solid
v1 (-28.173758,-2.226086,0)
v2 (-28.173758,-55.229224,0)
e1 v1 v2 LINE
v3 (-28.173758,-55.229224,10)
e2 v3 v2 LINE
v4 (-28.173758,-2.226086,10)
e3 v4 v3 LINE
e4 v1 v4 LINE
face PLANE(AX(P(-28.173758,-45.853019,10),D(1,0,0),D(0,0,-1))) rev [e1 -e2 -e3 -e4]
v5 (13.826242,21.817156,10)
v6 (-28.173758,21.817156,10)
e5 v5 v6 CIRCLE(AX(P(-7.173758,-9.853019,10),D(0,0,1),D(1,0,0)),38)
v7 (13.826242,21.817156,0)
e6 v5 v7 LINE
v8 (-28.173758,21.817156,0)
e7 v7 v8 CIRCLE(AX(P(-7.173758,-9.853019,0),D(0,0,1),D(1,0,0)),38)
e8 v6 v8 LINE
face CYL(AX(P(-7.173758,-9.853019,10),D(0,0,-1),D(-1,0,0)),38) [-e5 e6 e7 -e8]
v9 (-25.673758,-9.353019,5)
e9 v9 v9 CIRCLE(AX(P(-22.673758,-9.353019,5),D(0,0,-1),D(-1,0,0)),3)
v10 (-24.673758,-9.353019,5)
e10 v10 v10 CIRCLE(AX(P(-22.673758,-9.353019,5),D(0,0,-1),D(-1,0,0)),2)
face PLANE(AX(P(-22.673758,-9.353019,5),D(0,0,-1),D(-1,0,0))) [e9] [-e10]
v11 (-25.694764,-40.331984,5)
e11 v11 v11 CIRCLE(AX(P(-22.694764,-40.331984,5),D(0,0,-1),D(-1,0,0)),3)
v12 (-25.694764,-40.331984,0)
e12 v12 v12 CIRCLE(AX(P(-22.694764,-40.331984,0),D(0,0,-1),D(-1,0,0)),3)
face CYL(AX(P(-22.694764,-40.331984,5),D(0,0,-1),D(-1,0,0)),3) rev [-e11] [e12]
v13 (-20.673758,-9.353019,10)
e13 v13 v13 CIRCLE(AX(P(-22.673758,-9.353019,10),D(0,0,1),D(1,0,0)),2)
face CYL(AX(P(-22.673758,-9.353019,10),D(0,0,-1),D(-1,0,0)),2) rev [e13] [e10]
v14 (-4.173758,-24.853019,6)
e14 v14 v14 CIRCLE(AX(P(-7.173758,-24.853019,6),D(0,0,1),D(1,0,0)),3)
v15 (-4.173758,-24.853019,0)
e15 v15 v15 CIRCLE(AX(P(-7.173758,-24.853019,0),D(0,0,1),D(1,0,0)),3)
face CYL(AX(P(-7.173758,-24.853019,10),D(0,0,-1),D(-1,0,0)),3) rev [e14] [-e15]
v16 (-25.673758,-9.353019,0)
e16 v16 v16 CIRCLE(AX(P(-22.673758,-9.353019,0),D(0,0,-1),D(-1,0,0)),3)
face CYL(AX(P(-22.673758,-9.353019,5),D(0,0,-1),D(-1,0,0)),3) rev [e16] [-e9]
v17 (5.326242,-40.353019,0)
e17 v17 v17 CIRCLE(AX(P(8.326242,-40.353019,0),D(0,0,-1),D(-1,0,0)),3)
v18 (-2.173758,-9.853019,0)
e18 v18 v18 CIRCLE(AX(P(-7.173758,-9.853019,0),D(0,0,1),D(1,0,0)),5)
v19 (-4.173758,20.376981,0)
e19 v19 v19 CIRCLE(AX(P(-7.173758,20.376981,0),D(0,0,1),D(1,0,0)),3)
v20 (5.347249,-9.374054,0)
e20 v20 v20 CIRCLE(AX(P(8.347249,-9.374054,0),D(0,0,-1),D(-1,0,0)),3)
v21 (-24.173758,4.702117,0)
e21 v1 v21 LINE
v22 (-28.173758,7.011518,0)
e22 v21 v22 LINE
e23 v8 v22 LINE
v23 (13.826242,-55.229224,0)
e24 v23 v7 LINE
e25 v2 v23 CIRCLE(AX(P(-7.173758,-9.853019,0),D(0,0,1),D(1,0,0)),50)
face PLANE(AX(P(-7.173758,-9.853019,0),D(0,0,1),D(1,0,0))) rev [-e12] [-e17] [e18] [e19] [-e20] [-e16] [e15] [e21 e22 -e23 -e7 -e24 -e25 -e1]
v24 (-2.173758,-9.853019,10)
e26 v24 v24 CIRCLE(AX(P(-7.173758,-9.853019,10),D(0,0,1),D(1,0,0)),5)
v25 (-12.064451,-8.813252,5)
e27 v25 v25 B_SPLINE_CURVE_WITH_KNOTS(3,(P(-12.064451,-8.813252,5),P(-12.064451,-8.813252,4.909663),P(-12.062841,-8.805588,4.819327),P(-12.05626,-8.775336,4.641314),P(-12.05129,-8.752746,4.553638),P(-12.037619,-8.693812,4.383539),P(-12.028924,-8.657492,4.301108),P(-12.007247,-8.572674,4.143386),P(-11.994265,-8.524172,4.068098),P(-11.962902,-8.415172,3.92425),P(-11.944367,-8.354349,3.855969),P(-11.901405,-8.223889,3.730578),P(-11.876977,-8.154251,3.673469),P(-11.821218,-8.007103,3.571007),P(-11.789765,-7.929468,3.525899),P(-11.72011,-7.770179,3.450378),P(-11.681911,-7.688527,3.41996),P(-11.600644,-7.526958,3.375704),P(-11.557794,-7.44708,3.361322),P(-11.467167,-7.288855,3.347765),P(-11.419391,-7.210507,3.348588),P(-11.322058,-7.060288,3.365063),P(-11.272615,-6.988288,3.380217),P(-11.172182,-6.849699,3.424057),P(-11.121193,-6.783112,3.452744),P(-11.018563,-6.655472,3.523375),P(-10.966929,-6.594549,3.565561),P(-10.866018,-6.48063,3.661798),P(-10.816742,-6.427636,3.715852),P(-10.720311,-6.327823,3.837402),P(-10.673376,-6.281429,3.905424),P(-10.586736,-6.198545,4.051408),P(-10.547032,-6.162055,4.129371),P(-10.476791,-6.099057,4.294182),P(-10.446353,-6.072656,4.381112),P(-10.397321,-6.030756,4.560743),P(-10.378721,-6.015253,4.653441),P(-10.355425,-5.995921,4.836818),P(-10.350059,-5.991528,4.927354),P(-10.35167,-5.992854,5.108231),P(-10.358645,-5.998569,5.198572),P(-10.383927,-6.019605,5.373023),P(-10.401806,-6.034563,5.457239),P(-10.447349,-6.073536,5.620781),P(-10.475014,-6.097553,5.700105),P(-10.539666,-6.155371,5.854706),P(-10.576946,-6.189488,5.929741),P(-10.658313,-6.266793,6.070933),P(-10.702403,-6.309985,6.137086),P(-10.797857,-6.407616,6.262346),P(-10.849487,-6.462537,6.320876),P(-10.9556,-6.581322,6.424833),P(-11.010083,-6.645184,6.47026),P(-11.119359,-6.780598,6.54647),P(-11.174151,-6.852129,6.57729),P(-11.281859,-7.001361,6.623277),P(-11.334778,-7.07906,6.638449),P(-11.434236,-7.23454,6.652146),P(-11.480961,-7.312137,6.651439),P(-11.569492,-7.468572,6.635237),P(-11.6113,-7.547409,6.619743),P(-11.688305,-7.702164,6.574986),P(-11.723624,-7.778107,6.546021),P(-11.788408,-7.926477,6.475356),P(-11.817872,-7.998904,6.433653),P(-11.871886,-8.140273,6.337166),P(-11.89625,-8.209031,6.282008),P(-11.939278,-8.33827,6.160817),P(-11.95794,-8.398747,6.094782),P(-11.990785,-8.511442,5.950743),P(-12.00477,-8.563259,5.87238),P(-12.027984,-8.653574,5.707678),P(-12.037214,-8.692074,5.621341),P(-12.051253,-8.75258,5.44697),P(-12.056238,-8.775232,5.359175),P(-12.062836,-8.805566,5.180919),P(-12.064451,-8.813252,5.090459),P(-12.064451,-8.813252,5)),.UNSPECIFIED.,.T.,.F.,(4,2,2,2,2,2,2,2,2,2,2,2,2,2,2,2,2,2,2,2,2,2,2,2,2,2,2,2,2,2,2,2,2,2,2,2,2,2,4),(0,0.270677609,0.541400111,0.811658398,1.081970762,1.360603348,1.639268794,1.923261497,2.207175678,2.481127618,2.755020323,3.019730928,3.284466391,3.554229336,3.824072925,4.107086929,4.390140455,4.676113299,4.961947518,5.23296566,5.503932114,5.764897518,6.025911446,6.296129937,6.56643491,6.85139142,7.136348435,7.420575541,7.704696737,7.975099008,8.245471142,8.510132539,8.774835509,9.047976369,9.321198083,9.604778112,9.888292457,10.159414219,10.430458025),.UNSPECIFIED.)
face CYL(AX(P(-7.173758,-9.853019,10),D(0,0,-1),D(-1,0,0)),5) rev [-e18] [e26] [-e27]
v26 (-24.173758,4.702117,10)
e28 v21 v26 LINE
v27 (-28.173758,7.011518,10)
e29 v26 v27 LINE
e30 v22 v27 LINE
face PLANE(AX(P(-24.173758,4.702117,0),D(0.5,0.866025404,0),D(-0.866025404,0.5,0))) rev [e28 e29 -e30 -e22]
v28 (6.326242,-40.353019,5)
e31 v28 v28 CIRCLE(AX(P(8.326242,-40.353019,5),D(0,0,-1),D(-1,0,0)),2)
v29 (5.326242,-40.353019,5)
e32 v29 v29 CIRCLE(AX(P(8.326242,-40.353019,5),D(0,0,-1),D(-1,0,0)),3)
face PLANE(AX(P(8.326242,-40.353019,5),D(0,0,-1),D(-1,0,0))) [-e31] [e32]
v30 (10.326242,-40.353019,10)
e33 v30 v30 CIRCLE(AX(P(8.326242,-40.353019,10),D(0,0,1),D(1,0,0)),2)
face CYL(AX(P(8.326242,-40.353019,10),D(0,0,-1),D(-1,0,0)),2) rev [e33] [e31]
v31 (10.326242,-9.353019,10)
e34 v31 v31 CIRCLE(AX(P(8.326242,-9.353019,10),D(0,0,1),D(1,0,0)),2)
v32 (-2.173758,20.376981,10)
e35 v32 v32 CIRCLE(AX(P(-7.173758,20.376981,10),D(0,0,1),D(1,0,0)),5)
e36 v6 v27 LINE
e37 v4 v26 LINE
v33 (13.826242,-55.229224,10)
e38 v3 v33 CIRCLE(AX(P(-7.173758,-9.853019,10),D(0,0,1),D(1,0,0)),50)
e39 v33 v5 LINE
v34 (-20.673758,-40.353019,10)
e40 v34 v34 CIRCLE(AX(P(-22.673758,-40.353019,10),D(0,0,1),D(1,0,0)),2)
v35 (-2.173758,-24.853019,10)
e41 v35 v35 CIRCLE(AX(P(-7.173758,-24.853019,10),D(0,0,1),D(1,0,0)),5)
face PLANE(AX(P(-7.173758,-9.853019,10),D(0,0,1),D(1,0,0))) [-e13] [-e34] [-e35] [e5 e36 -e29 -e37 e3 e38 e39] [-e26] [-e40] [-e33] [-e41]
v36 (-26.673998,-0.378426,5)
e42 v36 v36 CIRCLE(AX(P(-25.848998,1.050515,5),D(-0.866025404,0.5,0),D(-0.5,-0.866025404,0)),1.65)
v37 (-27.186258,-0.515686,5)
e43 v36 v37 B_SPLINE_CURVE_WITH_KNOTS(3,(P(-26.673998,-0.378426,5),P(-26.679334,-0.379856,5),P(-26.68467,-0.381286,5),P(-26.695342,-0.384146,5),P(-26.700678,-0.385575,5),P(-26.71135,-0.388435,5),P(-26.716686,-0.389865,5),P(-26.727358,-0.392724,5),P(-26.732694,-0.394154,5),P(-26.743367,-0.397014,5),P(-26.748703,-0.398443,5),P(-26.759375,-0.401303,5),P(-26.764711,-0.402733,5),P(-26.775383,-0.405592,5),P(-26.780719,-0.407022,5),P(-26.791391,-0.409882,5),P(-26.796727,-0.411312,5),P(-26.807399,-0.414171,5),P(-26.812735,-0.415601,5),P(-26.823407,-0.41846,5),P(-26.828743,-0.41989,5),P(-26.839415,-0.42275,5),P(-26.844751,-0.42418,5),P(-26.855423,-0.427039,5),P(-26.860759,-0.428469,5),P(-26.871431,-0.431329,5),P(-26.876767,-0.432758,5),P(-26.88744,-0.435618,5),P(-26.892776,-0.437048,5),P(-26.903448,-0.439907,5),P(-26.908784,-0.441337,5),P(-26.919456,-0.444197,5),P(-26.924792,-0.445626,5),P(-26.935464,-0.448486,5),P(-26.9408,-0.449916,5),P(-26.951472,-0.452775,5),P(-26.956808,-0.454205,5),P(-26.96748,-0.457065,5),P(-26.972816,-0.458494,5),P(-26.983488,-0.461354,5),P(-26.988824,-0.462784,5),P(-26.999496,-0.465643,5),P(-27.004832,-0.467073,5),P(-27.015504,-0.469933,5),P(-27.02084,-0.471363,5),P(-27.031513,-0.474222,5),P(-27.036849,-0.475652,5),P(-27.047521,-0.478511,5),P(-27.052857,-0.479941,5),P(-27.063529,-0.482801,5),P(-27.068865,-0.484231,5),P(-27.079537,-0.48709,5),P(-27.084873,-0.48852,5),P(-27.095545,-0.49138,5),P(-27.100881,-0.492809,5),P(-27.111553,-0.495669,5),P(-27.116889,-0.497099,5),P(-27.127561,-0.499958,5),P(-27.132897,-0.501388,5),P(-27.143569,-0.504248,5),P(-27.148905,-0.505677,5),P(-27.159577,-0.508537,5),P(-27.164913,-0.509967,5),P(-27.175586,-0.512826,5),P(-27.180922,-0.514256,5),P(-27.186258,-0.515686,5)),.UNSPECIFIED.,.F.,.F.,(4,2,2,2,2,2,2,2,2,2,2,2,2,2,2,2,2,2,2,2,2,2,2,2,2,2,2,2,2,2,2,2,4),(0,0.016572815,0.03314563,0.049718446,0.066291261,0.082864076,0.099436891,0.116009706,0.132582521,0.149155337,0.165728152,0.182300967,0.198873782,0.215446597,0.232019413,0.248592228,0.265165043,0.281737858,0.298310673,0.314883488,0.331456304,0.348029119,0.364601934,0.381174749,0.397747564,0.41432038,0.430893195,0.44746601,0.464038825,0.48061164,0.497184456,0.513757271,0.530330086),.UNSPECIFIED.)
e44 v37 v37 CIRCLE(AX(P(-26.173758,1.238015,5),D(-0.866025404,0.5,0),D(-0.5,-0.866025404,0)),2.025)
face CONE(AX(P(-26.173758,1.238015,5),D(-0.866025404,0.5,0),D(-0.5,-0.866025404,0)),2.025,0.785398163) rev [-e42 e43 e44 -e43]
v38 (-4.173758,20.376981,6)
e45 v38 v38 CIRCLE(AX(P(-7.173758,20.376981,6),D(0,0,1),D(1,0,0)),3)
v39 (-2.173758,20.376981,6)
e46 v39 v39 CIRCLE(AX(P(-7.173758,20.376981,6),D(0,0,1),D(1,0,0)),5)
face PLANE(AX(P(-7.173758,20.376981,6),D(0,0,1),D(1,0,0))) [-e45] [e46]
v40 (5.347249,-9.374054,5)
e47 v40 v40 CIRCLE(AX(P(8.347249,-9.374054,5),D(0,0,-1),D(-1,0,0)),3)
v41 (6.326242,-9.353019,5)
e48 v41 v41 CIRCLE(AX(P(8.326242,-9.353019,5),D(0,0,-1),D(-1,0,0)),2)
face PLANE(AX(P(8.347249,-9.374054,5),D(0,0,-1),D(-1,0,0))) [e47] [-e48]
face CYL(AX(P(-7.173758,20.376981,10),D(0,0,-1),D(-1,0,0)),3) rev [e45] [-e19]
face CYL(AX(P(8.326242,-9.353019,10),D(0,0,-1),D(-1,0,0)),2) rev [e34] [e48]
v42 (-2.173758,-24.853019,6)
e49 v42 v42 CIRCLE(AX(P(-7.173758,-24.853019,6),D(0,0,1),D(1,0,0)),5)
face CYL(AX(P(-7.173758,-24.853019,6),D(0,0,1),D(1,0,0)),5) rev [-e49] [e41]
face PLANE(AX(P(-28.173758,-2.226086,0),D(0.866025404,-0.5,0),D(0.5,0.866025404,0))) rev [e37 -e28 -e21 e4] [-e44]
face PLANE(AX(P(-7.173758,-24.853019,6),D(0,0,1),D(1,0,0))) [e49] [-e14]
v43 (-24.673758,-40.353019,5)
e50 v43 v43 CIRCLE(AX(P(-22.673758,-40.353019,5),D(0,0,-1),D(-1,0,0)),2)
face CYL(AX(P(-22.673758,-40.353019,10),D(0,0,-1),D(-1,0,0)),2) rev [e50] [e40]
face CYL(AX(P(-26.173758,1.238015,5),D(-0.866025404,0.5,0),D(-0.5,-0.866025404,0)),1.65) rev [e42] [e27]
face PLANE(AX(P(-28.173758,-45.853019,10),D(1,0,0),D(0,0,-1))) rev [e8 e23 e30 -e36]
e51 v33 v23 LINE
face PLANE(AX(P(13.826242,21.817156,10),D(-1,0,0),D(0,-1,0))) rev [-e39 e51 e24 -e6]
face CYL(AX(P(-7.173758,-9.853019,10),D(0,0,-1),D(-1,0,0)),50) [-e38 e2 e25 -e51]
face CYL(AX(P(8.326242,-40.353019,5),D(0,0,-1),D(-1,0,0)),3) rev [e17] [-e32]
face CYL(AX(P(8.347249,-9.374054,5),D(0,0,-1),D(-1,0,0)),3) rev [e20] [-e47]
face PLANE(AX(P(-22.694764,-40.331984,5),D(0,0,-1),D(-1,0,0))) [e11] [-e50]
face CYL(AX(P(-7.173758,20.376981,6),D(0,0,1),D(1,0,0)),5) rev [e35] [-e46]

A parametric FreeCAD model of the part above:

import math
import FreeCAD as App
import Part
import Sketcher
Q = App.Units.Quantity

doc = App.newDocument("Part")
body = doc.addObject("PartDesign::Body", "Body")

# Sketch on XY plane
sketch1 = body.newObject("Sketcher::SketchObject", "Sketch")
sketch1.AttachmentSupport = (doc.getObject("XY_Plane"), [""])
sketch1.MapMode = "FlatFace"
sketch1.addGeometry([
    Part.ArcOfCircle(Part.Circle(App.Vector(-7.2, -9.9, 0), App.Vector(0, 0, 1), 50), math.radians(-115), math.radians(-65)),  # 0
    Part.LineSegment(App.Vector(13.8, -55.2, 0), App.Vector(13.8, 21.8, 0)),  # 1
    Part.ArcOfCircle(Part.Circle(App.Vector(-7.2, -9.9, 0), App.Vector(0, 0, 1), 38), math.radians(56), math.radians(124)),  # 2
    Part.LineSegment(App.Vector(-28.2, 21.8, 0), App.Vector(-28.2, -55.2, 0)),  # 3
    Part.Circle(App.Vector(-22.7, -40.4, 0), App.Vector(0, 0, 1), 2),  # 4
    Part.Circle(App.Vector(8.3, -40.4, 0), App.Vector(0, 0, 1), 2),  # 5
    Part.Circle(App.Vector(-7.2, -24.9, 0), App.Vector(0, 0, 1), 3),  # 6
    Part.Circle(App.Vector(-7.2, -9.9, 0), App.Vector(0, 0, 1), 5),  # 7
    Part.Circle(App.Vector(-22.7, -9.4, 0), App.Vector(0, 0, 1), 2),  # 8
    Part.Circle(App.Vector(8.3, -9.4, 0), App.Vector(0, 0, 1), 2),  # 9
    Part.Circle(App.Vector(-7.2, 20.4, 0), App.Vector(0, 0, 1), 3),  # 10
], False)
sketch1.addConstraint([
    Sketcher.Constraint("Coincident", 0, 2, 1, 1),
    Sketcher.Constraint("Coincident", 1, 2, 2, 1),
    Sketcher.Constraint("Coincident", 2, 2, 3, 1),
    Sketcher.Constraint("Coincident", 3, 2, 0, 1),
    Sketcher.Constraint("Vertical", 1),
    Sketcher.Constraint("Vertical", 3),
    Sketcher.Constraint("Coincident", 2, 3, 0, 3),
    Sketcher.Constraint("Coincident", 7, 3, 0, 3),
    Sketcher.Constraint("Equal", 4, 5),
    Sketcher.Constraint("Equal", 5, 8),
    Sketcher.Constraint("Equal", 8, 9),
    Sketcher.Constraint("Equal", 6, 10),
    Sketcher.Constraint("Horizontal", 4, 3, 5, 3),
    Sketcher.Constraint("Horizontal", 8, 3, 9, 3),
    Sketcher.Constraint("Horizontal", 1, 2, 2, 2),
    Sketcher.Constraint("Vertical", 2, 3, 6, 3),
    Sketcher.Constraint("Vertical", 4, 3, 8, 3),
    Sketcher.Constraint("Vertical", 5, 3, 9, 3),
    Sketcher.Constraint("Vertical", 7, 3, 10, 3),
    Sketcher.Constraint("Diameter", 4, 4.0),
    Sketcher.Constraint("Diameter", 6, 6.0),
    Sketcher.Constraint("Diameter", 7, 10.0),
    Sketcher.Constraint("Radius", 0, 50.0),
    Sketcher.Constraint("Radius", 2, 38.0),
    Sketcher.Constraint("DistanceX", 4, 3, 5, 3, 31.0),
    Sketcher.Constraint("DistanceY", 6, 3, 0, 3, 15.0),
    Sketcher.Constraint("DistanceY", 4, 3, 8, 3, 31.0),
    Sketcher.Constraint("DistanceX", 6, 3, 0, 2, 21.0),
    Sketcher.Constraint("DistanceX", 4, 3, 0, 3, 15.5),
    Sketcher.Constraint("DistanceY", 4, 3, 0, 3, 30.5),
    Sketcher.Constraint("DistanceY", 2, 3, 10, 3, 30.23),
    Sketcher.Constraint("DistanceY", 0, 3, -1, 1, 9.853019),
    Sketcher.Constraint("DistanceX", 0, 3, -1, 1, 7.173758),
])
pad1 = body.newObject("PartDesign::Pad", "Pad")
pad1.Profile = sketch1
pad1.Length = 10

# Sketch on XY plane
sketch2 = body.newObject("Sketcher::SketchObject", "Sketch001")
sketch2.AttachmentSupport = (doc.getObject("XY_Plane"), [""])
sketch2.MapMode = "FlatFace"
sketch2.AttachmentOffset = App.Placement(App.Vector(0, 0, 10), App.Rotation())
sketch2.addGeometry([
    Part.Circle(App.Vector(-7, -25, 0), App.Vector(0, 0, 1), 5),
    Part.Circle(App.Vector(-7, 20, 0), App.Vector(0, 0, 1), 5),
], False)
sketch2.addConstraint([
    Sketcher.Constraint("Equal", 0, 1),
    Sketcher.Constraint("Vertical", 0, 3, 1, 3),
    Sketcher.Constraint("Diameter", 0, 10.0),
    Sketcher.Constraint("DistanceY", 0, 3, 1, 3, 45.23),
    Sketcher.Constraint("DistanceY", 0, 3, -1, 1, 24.853019),
    Sketcher.Constraint("DistanceX", 0, 3, -1, 1, 7.173758),
])
pocket1 = body.newObject("PartDesign::Pocket", "Pocket")
pocket1.Profile = sketch2
pocket1.Length = 4

# Sketch on XY plane
sketch3 = body.newObject("Sketcher::SketchObject", "Sketch002")
sketch3.AttachmentSupport = (doc.getObject("XY_Plane"), [""])
sketch3.MapMode = "FlatFace"
sketch3.addGeometry([
    Part.Circle(App.Vector(-22.7, -40.3, 0), App.Vector(0, 0, 1), 3),
    Part.Circle(App.Vector(8.3, -40.4, 0), App.Vector(0, 0, 1), 3),
    Part.Circle(App.Vector(-22.7, -9.4, 0), App.Vector(0, 0, 1), 3),
    Part.Circle(App.Vector(8.3, -9.4, 0), App.Vector(0, 0, 1), 3),
], False)
sketch3.addConstraint([
    Sketcher.Constraint("Equal", 0, 1),
    Sketcher.Constraint("Equal", 1, 2),
    Sketcher.Constraint("Equal", 2, 3),
    Sketcher.Constraint("Diameter", 0, 6.0),
    Sketcher.Constraint("DistanceX", 2, 3, 1, 3, 31.0),
    Sketcher.Constraint("DistanceY", 1, 3, 2, 3, 31.0),
    Sketcher.Constraint("DistanceY", 1, 3, -1, 1, 40.353019),
    Sketcher.Constraint("DistanceX", -1, 1, 3, 3, 8.347249),
    Sketcher.Constraint("DistanceY", 0, 3, 3, 3, 30.957929),
    Sketcher.Constraint("DistanceX", 0, 3, -1, 1, 22.694764),
    Sketcher.Constraint("DistanceY", 0, 3, -1, 1, 40.331984),
    Sketcher.Constraint("DistanceX", -1, 1, 1, 3, 8.326242),
])
pocket2 = body.newObject("PartDesign::Pocket", "Pocket001")
pocket2.Profile = sketch3
pocket2.Length = 5
pocket2.Reversed = True

# Sketch on XY plane
sketch4 = body.newObject("Sketcher::SketchObject", "Sketch003")
sketch4.AttachmentSupport = (doc.getObject("XY_Plane"), [""])
sketch4.MapMode = "FlatFace"
sketch4.AttachmentOffset = App.Placement(App.Vector(0, 0, 10), App.Rotation())
sketch4.addGeometry([
    Part.LineSegment(App.Vector(-28.2, -2.2, 0), App.Vector(-24.2, 4.7, 0)),
    Part.LineSegment(App.Vector(-24.2, 4.7, 0), App.Vector(-28.2, 7, 0)),
    Part.LineSegment(App.Vector(-28.2, 7, 0), App.Vector(-28.2, -2.2, 0)),
], False)
sketch4.addConstraint([
    Sketcher.Constraint("Coincident", 0, 2, 1, 1),
    Sketcher.Constraint("Coincident", 1, 2, 2, 1),
    Sketcher.Constraint("Coincident", 2, 2, 0, 1),
    Sketcher.Constraint("Vertical", 2),
    Sketcher.Constraint("Perpendicular", 0, 1),
    Sketcher.Constraint("Angle", 0, Q("60 deg")),
    Sketcher.Constraint("Distance", 0, 8.0),
    Sketcher.Constraint("DistanceY", -1, 1, 1, 2, 7.011518),
    Sketcher.Constraint("DistanceX", 0, 2, -1, 1, 24.173758),
])
pocket3 = body.newObject("PartDesign::Pocket", "Pocket002")
pocket3.Profile = sketch4
pocket3.Length = 10

# Sketch on an angled plane
sketch5 = body.newObject("Sketcher::SketchObject", "Sketch004")
sketch5.Placement = App.Placement(App.Vector(-20.166395, 11.643073, 0), App.Rotation(App.Vector(0, 0, 1), App.Vector(0.5, 0.866025404, 0), App.Vector(-0.866025404, 0.5, 0), "ZXY"))
sketch5.addGeometry(Part.Circle(App.Vector(5, -12, 0), App.Vector(0, 0, 1), 1.5), False)
sketch5.addConstraint([
    Sketcher.Constraint("Diameter", 0, 3.0),
    Sketcher.Constraint("DistanceX", -1, 1, 0, 3, 5.0),
    Sketcher.Constraint("DistanceY", 0, 3, -1, 1, 12.014726),
])
pocket4 = body.newObject("PartDesign::Pocket", "Pocket003")
pocket4.Profile = sketch5
pocket4.Length = 20

# Sketch on an angled plane
sketch6 = body.newObject("Sketcher::SketchObject", "Sketch005")
sketch6.Placement = App.Placement(App.Vector(-20.166395, 11.643073, 0), App.Rotation(App.Vector(-0.5, -0.866025404, 0), App.Vector(0, 0, 1), App.Vector(-0.866025404, 0.5, 0), "ZXY"))
sketch6.addGeometry(Part.Circle(App.Vector(12, 5, 0), App.Vector(0, 0, 1), 1.6), False)
sketch6.addConstraint([
    Sketcher.Constraint("Diameter", 0, 3.3),
    Sketcher.Constraint("DistanceY", -1, 1, 0, 3, 5.0),
    Sketcher.Constraint("DistanceX", -1, 1, 0, 3, 12.014726),
])
doc.recompute()
hole = body.newObject("PartDesign::Hole", "Hole")
hole.Profile = sketch6
hole.ThreadType = "None"
hole.Diameter = 3.3
hole.DepthType = "Dimension"
hole.Depth = 20
hole.DrillPoint = "Angled"
hole.DrillPointAngle = 118
hole.HoleCutType = "Countersink"
hole.HoleCutDiameter = 4.05
hole.HoleCutCountersinkAngle = 90

doc.recompute()
